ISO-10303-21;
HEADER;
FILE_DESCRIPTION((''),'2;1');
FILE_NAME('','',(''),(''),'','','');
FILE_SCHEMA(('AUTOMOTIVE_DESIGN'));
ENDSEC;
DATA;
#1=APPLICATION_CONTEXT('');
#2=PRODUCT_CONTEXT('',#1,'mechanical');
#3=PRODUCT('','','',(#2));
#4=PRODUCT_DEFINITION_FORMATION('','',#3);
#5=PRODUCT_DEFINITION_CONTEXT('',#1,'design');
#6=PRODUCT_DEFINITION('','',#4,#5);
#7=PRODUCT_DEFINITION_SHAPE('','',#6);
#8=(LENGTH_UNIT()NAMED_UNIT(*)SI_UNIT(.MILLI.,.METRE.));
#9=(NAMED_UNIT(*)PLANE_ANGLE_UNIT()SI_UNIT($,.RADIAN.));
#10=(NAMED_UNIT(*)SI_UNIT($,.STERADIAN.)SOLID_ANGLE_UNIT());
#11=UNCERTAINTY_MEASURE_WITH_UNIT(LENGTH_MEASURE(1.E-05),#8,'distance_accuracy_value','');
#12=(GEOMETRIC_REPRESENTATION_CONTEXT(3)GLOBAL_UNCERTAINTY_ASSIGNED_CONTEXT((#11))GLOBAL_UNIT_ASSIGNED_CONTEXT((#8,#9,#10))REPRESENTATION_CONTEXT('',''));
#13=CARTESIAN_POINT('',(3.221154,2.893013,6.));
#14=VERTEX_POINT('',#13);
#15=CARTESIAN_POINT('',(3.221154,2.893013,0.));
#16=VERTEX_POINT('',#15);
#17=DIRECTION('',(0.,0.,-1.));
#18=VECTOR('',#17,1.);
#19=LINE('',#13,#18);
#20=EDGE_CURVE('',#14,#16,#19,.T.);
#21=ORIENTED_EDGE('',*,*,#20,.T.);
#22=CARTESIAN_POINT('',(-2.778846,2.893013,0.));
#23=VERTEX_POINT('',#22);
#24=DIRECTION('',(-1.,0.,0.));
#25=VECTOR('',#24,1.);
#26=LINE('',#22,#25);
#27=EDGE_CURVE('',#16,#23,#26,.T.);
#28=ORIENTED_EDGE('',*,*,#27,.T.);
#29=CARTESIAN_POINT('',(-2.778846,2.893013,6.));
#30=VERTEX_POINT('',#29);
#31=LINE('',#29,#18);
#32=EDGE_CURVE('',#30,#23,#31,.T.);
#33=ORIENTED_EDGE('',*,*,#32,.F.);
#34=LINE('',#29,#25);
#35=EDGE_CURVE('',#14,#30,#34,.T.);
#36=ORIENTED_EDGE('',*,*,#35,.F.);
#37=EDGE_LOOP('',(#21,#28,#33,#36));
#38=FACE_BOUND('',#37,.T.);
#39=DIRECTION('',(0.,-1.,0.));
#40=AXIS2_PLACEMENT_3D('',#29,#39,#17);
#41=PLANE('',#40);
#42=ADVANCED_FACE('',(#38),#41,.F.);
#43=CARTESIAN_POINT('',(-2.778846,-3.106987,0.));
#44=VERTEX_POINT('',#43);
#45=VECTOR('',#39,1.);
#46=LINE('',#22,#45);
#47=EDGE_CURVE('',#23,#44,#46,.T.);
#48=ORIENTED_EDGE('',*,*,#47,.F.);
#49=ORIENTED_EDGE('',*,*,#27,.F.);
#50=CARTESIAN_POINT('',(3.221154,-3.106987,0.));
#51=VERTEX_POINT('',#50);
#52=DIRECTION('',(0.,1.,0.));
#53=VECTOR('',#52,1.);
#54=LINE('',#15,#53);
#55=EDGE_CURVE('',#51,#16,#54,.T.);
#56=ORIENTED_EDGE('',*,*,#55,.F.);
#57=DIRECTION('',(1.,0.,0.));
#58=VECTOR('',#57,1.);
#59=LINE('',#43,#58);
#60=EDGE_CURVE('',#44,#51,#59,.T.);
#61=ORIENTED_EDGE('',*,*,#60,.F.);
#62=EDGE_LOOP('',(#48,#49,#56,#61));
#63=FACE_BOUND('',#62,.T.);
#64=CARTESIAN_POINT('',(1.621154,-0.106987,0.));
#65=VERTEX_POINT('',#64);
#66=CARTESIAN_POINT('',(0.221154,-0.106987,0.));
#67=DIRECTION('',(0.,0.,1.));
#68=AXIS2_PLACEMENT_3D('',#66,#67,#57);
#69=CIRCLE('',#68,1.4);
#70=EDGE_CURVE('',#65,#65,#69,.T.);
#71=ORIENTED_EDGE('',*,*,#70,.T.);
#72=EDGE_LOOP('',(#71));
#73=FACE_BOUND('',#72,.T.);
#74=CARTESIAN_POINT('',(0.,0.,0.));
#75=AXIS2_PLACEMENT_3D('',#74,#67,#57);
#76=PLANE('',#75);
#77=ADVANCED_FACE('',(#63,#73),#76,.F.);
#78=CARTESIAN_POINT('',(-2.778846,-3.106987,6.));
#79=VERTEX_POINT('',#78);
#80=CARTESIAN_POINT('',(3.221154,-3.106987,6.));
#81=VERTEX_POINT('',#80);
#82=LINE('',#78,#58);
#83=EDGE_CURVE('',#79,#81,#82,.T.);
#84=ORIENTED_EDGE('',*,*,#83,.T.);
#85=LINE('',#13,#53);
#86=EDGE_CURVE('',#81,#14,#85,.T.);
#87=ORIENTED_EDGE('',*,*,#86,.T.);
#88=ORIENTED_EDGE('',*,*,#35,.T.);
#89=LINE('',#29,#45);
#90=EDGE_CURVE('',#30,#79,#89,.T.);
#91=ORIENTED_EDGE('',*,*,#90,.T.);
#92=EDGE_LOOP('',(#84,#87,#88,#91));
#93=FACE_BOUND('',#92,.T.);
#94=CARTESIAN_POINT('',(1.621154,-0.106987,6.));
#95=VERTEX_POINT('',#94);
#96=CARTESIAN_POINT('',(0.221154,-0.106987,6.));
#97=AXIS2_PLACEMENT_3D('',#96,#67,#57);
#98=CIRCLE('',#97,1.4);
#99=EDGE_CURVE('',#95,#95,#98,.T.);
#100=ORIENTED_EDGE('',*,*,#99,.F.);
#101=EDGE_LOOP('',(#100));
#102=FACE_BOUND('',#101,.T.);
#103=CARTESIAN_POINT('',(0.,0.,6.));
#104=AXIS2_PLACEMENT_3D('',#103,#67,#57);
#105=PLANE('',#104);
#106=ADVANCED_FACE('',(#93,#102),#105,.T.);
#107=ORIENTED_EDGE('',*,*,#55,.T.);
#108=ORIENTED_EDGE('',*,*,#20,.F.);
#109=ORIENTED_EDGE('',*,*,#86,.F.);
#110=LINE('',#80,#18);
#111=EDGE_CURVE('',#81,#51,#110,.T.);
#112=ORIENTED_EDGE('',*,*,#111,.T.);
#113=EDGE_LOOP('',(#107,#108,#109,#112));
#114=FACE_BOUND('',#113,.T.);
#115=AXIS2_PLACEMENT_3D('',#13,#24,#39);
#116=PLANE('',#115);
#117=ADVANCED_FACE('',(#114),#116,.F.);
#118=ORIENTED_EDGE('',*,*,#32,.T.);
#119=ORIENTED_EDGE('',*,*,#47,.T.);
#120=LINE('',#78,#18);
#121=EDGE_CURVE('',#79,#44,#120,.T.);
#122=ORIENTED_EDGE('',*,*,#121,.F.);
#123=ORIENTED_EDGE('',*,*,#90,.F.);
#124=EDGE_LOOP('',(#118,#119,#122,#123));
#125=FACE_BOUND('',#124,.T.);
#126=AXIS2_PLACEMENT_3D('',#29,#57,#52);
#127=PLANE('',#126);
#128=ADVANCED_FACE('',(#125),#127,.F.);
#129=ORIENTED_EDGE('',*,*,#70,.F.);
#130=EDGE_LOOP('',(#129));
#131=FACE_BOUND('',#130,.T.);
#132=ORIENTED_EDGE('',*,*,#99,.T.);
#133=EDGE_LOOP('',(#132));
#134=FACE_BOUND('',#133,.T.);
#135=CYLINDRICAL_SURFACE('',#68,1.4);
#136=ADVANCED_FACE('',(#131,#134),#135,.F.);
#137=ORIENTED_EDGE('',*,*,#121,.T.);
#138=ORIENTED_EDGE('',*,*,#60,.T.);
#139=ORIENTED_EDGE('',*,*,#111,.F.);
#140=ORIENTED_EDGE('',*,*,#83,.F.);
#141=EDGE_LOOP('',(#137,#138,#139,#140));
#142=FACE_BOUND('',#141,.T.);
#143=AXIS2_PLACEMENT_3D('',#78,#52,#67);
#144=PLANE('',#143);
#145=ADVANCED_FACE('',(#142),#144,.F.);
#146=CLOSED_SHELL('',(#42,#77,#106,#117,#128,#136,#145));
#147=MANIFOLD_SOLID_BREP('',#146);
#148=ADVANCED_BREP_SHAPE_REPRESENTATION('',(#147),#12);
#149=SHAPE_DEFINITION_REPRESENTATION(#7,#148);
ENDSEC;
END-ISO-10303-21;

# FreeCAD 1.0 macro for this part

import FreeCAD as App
import Part
import Sketcher

doc = App.newDocument("Part")
body = doc.addObject("PartDesign::Body", "Body")

# Sketch on XY plane
sketch1 = body.newObject("Sketcher::SketchObject", "Sketch")
sketch1.AttachmentSupport = (doc.getObject("XY_Plane"), [""])
sketch1.MapMode = "FlatFace"
sketch1.addGeometry(Part.LineSegment(App.Vector(-3, 3, 0), App.Vector(-3, -3, 0)), False)
sketch1.addGeometry(Part.LineSegment(App.Vector(-3, -3, 0), App.Vector(3, -3, 0)), False)
sketch1.addGeometry(Part.LineSegment(App.Vector(3, -3, 0), App.Vector(3, 3, 0)), False)
sketch1.addGeometry(Part.LineSegment(App.Vector(3, 3, 0), App.Vector(-3, 3, 0)), False)
sketch1.addConstraint(Sketcher.Constraint("Coincident", 0, 2, 1, 1))
sketch1.addConstraint(Sketcher.Constraint("Coincident", 1, 2, 2, 1))
sketch1.addConstraint(Sketcher.Constraint("Coincident", 2, 2, 3, 1))
sketch1.addConstraint(Sketcher.Constraint("Coincident", 3, 2, 0, 1))
sketch1.addConstraint(Sketcher.Constraint("Vertical", 0))
sketch1.addConstraint(Sketcher.Constraint("Horizontal", 1))
sketch1.addConstraint(Sketcher.Constraint("Vertical", 2))
sketch1.addConstraint(Sketcher.Constraint("Horizontal", 3))
sketch1.addConstraint(Sketcher.Constraint("Equal", 3, 0))
sketch1.addConstraint(Sketcher.Constraint("DistanceX", 1, 1, 1, 2, 6.0))
sketch1.addConstraint(Sketcher.Constraint("DistanceX", 0, 2, -1, 1, 2.778846))
sketch1.addConstraint(Sketcher.Constraint("DistanceY", 0, 2, -1, 1, 3.106987))
pad1 = body.newObject("PartDesign::Pad", "Pad")
pad1.Profile = sketch1
pad1.Length = 6

# Sketch on XY plane
sketch2 = body.newObject("Sketcher::SketchObject", "Sketch001")
sketch2.AttachmentSupport = (doc.getObject("XY_Plane"), [""])
sketch2.MapMode = "FlatFace"
sketch2.AttachmentOffset = App.Placement(App.Vector(0, 0, 6), App.Rotation())
sketch2.addGeometry(Part.Circle(App.Vector(0.2, -0.1, 0), App.Vector(0, 0, 1), 1.4), False)
sketch2.addConstraint(Sketcher.Constraint("Diameter", 0, 2.8))
sketch2.addConstraint(Sketcher.Constraint("DistanceX", -1, 1, 0, 3, 0.221154))
sketch2.addConstraint(Sketcher.Constraint("DistanceY", 0, 3, -1, 1, 0.106987))
pocket1 = body.newObject("PartDesign::Pocket", "Pocket")
pocket1.Profile = sketch2
pocket1.Type = "ThroughAll"

doc.recompute()
